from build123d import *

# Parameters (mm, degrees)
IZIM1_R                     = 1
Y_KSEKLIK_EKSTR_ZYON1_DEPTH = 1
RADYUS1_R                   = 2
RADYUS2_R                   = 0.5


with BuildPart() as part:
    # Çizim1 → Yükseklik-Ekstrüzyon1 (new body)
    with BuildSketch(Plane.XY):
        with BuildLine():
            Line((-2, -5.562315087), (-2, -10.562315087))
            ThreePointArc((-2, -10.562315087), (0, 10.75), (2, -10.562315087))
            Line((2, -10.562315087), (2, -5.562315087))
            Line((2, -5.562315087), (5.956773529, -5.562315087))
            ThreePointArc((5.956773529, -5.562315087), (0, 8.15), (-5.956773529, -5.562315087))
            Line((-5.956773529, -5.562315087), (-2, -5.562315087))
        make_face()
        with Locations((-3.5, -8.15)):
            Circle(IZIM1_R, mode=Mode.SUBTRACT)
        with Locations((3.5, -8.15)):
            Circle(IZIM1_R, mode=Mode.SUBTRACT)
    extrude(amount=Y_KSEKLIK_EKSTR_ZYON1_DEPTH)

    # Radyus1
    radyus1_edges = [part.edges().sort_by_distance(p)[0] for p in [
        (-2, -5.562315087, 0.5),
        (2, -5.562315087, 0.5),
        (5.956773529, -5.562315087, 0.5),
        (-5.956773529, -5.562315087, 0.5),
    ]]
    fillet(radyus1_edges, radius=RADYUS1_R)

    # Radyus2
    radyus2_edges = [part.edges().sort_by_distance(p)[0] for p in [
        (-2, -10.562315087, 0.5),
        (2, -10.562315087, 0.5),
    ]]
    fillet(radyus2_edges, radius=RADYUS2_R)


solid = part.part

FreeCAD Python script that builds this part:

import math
import FreeCAD as App
import Part
import Sketcher

V = App.Vector
Q = App.Units.Quantity


def edges_at(feature, points):
    """Names of the edges that pass closest to the given points."""
    edges = feature.Shape.Edges
    near = lambda p: min(range(len(edges)), key=lambda i: edges[i].distToShape(Part.Vertex(*p))[0])
    return sorted({f"Edge{near(p) + 1}" for p in points})

doc = App.newDocument("Part")
body = doc.addObject("PartDesign::Body", "Body")

# Sketch on XY plane
sketch1 = body.newObject("Sketcher::SketchObject", "Sketch")
sketch1.AttachmentSupport = (doc.getObject("XY_Plane"), [""])
sketch1.MapMode = "FlatFace"
sketch1.addGeometry([
    Part.LineSegment(V(-2, -10.562315, 0), V(-2, -5.562315, 0)),  # 0
    Part.LineSegment(V(-2, -5.562315, 0), V(-5.956774, -5.562315, 0)),  # 1
    Part.ArcOfCircle(Part.Circle(V(0, 0, 0), V(0, 0, 1), 8.15), math.radians(-43.038736), math.radians(223.038736)),  # 2
    Part.LineSegment(V(5.956774, -5.562315, 0), V(2, -5.562315, 0)),  # 3
    Part.LineSegment(V(2, -5.562315, 0), V(2, -10.562315, 0)),  # 4
    Part.ArcOfCircle(Part.Circle(V(0, 0, 0), V(0, 0, 1), 10.75), math.radians(-79.277848), math.radians(259.277848)),  # 5
    Part.Circle(V(3.5, -8.15, 0), V(0, 0, 1), 1),  # 6
    Part.Circle(V(-3.5, -8.15, 0), V(0, 0, 1), 1),  # 7
], False)
sketch1.addConstraint([
    Sketcher.Constraint("Coincident", 0, 2, 1, 1),
    Sketcher.Constraint("Coincident", 1, 2, 2, 2),
    Sketcher.Constraint("Coincident", 2, 1, 3, 1),
    Sketcher.Constraint("Coincident", 3, 2, 4, 1),
    Sketcher.Constraint("Coincident", 4, 2, 5, 1),
    Sketcher.Constraint("Coincident", 5, 2, 0, 1),
    Sketcher.Constraint("Vertical", 0),
    Sketcher.Constraint("Horizontal", 1),
    Sketcher.Constraint("Horizontal", 3),
    Sketcher.Constraint("Vertical", 4),
    Sketcher.Constraint("Coincident", 2, 3, -1, 1),
    Sketcher.Constraint("Coincident", 5, 3, -1, 1),
    Sketcher.Constraint("Equal", 6, 7),
    Sketcher.Constraint("Symmetric", 6, 3, 7, 3, -2),
    Sketcher.Constraint("Symmetric", 0, 2, 3, 2, -2),
    Sketcher.Constraint("Diameter", 6, Q("2 mm")),
    Sketcher.Constraint("DistanceY", 0, 1, 0, 2, Q("5 mm")),
    Sketcher.Constraint("Radius", 2, Q("8.15 mm")),
    Sketcher.Constraint("Radius", 5, Q("10.75 mm")),
    Sketcher.Constraint("DistanceX", 0, 2, -1, 1, Q("2 mm")),
    Sketcher.Constraint("DistanceX", 7, 3, 6, 3, Q("7 mm")),
    Sketcher.Constraint("DistanceY", 6, 3, -1, 1, Q("8.15 mm")),
])
pad1 = body.newObject("PartDesign::Pad", "Pad")
pad1.Profile = sketch1
pad1.Length = 1
doc.recompute()

fillet = body.newObject("PartDesign::Fillet", "Fillet")
fillet.Base = (pad1, edges_at(pad1, [
    (-2, -5.562, 0.5),
    (2, -5.562, 0.5),
    (5.957, -5.562, 0.5),
    (-5.957, -5.562, 0.5),
]))
fillet.Radius = 2
doc.recompute()

fillet2 = body.newObject("PartDesign::Fillet", "Fillet001")
fillet2.Base = (fillet, edges_at(fillet, [(-2, -10.562, 0.5), (2, -10.562, 0.5)]))
fillet2.Radius = 0.5

doc.recompute()
